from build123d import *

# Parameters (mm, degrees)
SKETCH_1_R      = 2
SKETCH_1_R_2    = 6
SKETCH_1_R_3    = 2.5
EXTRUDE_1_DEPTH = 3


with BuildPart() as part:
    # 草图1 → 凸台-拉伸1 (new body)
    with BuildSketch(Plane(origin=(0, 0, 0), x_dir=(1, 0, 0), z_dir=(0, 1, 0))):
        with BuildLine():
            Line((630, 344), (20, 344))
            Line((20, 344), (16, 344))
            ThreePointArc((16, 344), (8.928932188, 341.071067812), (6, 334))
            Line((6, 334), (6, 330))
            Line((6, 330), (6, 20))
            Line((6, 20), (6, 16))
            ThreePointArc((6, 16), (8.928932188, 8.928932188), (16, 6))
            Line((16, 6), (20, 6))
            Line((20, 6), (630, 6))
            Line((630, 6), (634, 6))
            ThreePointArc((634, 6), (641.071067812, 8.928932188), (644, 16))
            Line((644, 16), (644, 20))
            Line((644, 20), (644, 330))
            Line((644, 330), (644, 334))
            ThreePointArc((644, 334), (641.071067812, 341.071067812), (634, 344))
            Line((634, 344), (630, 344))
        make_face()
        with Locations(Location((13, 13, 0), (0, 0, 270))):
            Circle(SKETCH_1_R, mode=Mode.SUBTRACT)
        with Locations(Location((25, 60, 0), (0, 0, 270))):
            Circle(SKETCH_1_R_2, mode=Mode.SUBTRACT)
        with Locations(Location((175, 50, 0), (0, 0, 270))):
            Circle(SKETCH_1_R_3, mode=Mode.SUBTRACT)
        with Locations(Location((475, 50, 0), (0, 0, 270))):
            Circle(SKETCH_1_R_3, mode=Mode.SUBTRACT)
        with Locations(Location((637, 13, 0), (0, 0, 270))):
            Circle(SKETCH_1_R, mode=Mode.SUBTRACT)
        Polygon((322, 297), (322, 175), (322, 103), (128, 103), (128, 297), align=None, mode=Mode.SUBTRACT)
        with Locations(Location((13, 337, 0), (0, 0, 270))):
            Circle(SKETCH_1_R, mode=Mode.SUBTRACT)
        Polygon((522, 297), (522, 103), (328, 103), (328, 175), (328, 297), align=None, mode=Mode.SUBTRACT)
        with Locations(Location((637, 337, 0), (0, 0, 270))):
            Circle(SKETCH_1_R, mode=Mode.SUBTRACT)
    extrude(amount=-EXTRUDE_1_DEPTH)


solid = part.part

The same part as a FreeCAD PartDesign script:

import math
import FreeCAD as App
import Part
import Sketcher
Q = App.Units.Quantity


def add_polygon(sketch, points):
    """Adds a closed chain of lines whose ends are joined by coincident constraints."""
    first, n = sketch.GeometryCount, len(points)
    for a, b in zip(points, points[1:] + points[:1]):
        sketch.addGeometry(Part.LineSegment(App.Vector(*a, 0), App.Vector(*b, 0)), False)
    for i in range(n):
        sketch.addConstraint(Sketcher.Constraint("Coincident", first + i, 2, first + (i + 1) % n, 1))

doc = App.newDocument("Part")
params = doc.addObject("Spreadsheet::Sheet", "Params")
for row, (alias, value) in enumerate([
    ("sketch1_diameter", "4 mm"),
    ("sketch1_diameter2", "12 mm"),
    ("sketch1_diameter3", "5 mm"),
    ("sketch1_radius", "10 mm"),
    ("sketch1_width", "618 mm"),
    ("pad1_length", "3 mm"),
], start=1):
    params.set(f"A{row}", alias)
    params.set(f"B{row}", "=" + value)
    params.setAlias(f"B{row}", alias)

body = doc.addObject("PartDesign::Body", "Body")

# Sketch on XZ plane
sketch1 = body.newObject("Sketcher::SketchObject", "Sketch")
sketch1.AttachmentSupport = (doc.getObject("XZ_Plane"), [""])
sketch1.MapMode = "FlatFace"
sketch1.addGeometry(Part.ArcOfCircle(Part.Circle(App.Vector(16, -334, 0), App.Vector(0, 0, 1), 10), math.radians(180), math.radians(270)), False)  # 0
sketch1.addGeometry(Part.LineSegment(App.Vector(6, -334, 0), App.Vector(6, -16, 0)), False)  # 1
sketch1.addGeometry(Part.ArcOfCircle(Part.Circle(App.Vector(16, -16, 0), App.Vector(0, 0, 1), 10), math.radians(90), math.radians(180)), False)  # 2
sketch1.addGeometry(Part.LineSegment(App.Vector(16, -6, 0), App.Vector(634, -6, 0)), False)  # 3
sketch1.addGeometry(Part.ArcOfCircle(Part.Circle(App.Vector(634, -16, 0), App.Vector(0, 0, 1), 10), math.radians(0), math.radians(90)), False)  # 4
sketch1.addGeometry(Part.LineSegment(App.Vector(644, -16, 0), App.Vector(644, -334, 0)), False)  # 5
sketch1.addGeometry(Part.ArcOfCircle(Part.Circle(App.Vector(634, -334, 0), App.Vector(0, 0, 1), 10), math.radians(-90), math.radians(0)), False)  # 6
sketch1.addGeometry(Part.LineSegment(App.Vector(634, -344, 0), App.Vector(16, -344, 0)), False)  # 7
sketch1.addGeometry(Part.Circle(App.Vector(13, -13, 0), App.Vector(0, 0, 1), 2), False)  # 8
sketch1.addGeometry(Part.Circle(App.Vector(25, -60, 0), App.Vector(0, 0, 1), 6), False)  # 9
sketch1.addGeometry(Part.Circle(App.Vector(175, -50, 0), App.Vector(0, 0, 1), 2.5), False)  # 10
sketch1.addGeometry(Part.Circle(App.Vector(475, -50, 0), App.Vector(0, 0, 1), 2.5), False)  # 11
sketch1.addGeometry(Part.Circle(App.Vector(637, -13, 0), App.Vector(0, 0, 1), 2), False)  # 12
add_polygon(sketch1, [(128, -297), (322, -297), (322, -103), (128, -103)])  # lines 13-16
sketch1.addGeometry(Part.Circle(App.Vector(13, -337, 0), App.Vector(0, 0, 1), 2), False)  # 17
add_polygon(sketch1, [(328, -297), (522, -297), (522, -103), (328, -103)])  # lines 18-21
sketch1.addGeometry(Part.Circle(App.Vector(637, -337, 0), App.Vector(0, 0, 1), 2), False)  # 22
sketch1.addConstraint([
    Sketcher.Constraint("Tangent", 0, 1, 1, 1),
    Sketcher.Constraint("Tangent", 1, 2, 2, 2),
    Sketcher.Constraint("Tangent", 2, 1, 3, 1),
    Sketcher.Constraint("Tangent", 3, 2, 4, 2),
    Sketcher.Constraint("Tangent", 4, 1, 5, 1),
    Sketcher.Constraint("Tangent", 5, 2, 6, 2),
    Sketcher.Constraint("Tangent", 6, 1, 7, 1),
    Sketcher.Constraint("Tangent", 7, 2, 0, 2),
    Sketcher.Constraint("Vertical", 1),
    Sketcher.Constraint("Horizontal", 3),
    Sketcher.Constraint("Vertical", 5),
    Sketcher.Constraint("Horizontal", 7),
    Sketcher.Constraint("Horizontal", 13),
    Sketcher.Constraint("Vertical", 14),
    Sketcher.Constraint("Horizontal", 15),
    Sketcher.Constraint("Vertical", 16),
    Sketcher.Constraint("Horizontal", 18),
    Sketcher.Constraint("Vertical", 19),
    Sketcher.Constraint("Horizontal", 20),
    Sketcher.Constraint("Vertical", 21),
    Sketcher.Constraint("Equal", 0, 2),
    Sketcher.Constraint("Equal", 2, 4),
    Sketcher.Constraint("Equal", 4, 6),
    Sketcher.Constraint("Equal", 10, 11),
    Sketcher.Constraint("Equal", 8, 12),
    Sketcher.Constraint("Equal", 12, 17),
    Sketcher.Constraint("Equal", 17, 22),
    Sketcher.Constraint("Horizontal", 10, 3, 11, 3),
    Sketcher.Constraint("Horizontal", 8, 3, 12, 3),
    Sketcher.Constraint("Horizontal", 17, 3, 22, 3),
    Sketcher.Constraint("Horizontal", 16, 2, 18, 2),
    Sketcher.Constraint("Horizontal", 15, 2, 19, 2),
    Sketcher.Constraint("Vertical", 8, 3, 17, 3),
    Sketcher.Constraint("Vertical", 12, 3, 22, 3),
    Sketcher.Constraint("Equal", 15, 18),
    Sketcher.Constraint("Equal", 20, 14),
    Sketcher.Constraint("Diameter", 8, Q("4 mm")),
    Sketcher.Constraint("Diameter", 9, Q("12 mm")),
    Sketcher.Constraint("Diameter", 10, Q("5 mm")),
    Sketcher.Constraint("Radius", 0, Q("10 mm")),
    Sketcher.Constraint("DistanceX", 3, 1, 3, 2, Q("618 mm")),
    Sketcher.Constraint("DistanceX", 13, 1, 13, 2, Q("194 mm")),
    Sketcher.Constraint("DistanceY", 1, 1, 1, 2, Q("318 mm")),
    Sketcher.Constraint("DistanceX", -1, 1, 0, 3, Q("16 mm")),
    Sketcher.Constraint("DistanceY", 0, 3, -1, 1, Q("334 mm")),
    Sketcher.Constraint("DistanceX", -1, 1, 8, 3, Q("13 mm")),
    Sketcher.Constraint("DistanceY", 8, 3, -1, 1, Q("13 mm")),
    Sketcher.Constraint("DistanceX", -1, 1, 9, 3, Q("25 mm")),
    Sketcher.Constraint("DistanceY", 9, 3, -1, 1, Q("60 mm")),
    Sketcher.Constraint("DistanceX", -1, 1, 10, 3, Q("175 mm")),
    Sketcher.Constraint("DistanceY", 10, 3, -1, 1, Q("50 mm")),
    Sketcher.Constraint("DistanceX", -1, 1, 11, 3, Q("475 mm")),
    Sketcher.Constraint("DistanceX", -1, 1, 12, 3, Q("637 mm")),
    Sketcher.Constraint("DistanceY", 17, 3, -1, 1, Q("337 mm")),
    Sketcher.Constraint("DistanceX", -1, 1, 13, 2, Q("322 mm")),
    Sketcher.Constraint("DistanceY", 13, 2, -1, 1, Q("297 mm")),
    Sketcher.Constraint("DistanceX", -1, 1, 18, 2, Q("522 mm")),
])
sketch1.setExpression("Constraints[44]", "Params.sketch1_diameter")
sketch1.setExpression("Constraints[45]", "Params.sketch1_diameter2")
sketch1.setExpression("Constraints[46]", "Params.sketch1_diameter3")
sketch1.setExpression("Constraints[47]", "Params.sketch1_radius")
sketch1.setExpression("Constraints[48]", "Params.sketch1_width")
pad1 = body.newObject("PartDesign::Pad", "Pad")
pad1.Profile = sketch1
pad1.setExpression("Length", "Params.pad1_length")

doc.recompute()
